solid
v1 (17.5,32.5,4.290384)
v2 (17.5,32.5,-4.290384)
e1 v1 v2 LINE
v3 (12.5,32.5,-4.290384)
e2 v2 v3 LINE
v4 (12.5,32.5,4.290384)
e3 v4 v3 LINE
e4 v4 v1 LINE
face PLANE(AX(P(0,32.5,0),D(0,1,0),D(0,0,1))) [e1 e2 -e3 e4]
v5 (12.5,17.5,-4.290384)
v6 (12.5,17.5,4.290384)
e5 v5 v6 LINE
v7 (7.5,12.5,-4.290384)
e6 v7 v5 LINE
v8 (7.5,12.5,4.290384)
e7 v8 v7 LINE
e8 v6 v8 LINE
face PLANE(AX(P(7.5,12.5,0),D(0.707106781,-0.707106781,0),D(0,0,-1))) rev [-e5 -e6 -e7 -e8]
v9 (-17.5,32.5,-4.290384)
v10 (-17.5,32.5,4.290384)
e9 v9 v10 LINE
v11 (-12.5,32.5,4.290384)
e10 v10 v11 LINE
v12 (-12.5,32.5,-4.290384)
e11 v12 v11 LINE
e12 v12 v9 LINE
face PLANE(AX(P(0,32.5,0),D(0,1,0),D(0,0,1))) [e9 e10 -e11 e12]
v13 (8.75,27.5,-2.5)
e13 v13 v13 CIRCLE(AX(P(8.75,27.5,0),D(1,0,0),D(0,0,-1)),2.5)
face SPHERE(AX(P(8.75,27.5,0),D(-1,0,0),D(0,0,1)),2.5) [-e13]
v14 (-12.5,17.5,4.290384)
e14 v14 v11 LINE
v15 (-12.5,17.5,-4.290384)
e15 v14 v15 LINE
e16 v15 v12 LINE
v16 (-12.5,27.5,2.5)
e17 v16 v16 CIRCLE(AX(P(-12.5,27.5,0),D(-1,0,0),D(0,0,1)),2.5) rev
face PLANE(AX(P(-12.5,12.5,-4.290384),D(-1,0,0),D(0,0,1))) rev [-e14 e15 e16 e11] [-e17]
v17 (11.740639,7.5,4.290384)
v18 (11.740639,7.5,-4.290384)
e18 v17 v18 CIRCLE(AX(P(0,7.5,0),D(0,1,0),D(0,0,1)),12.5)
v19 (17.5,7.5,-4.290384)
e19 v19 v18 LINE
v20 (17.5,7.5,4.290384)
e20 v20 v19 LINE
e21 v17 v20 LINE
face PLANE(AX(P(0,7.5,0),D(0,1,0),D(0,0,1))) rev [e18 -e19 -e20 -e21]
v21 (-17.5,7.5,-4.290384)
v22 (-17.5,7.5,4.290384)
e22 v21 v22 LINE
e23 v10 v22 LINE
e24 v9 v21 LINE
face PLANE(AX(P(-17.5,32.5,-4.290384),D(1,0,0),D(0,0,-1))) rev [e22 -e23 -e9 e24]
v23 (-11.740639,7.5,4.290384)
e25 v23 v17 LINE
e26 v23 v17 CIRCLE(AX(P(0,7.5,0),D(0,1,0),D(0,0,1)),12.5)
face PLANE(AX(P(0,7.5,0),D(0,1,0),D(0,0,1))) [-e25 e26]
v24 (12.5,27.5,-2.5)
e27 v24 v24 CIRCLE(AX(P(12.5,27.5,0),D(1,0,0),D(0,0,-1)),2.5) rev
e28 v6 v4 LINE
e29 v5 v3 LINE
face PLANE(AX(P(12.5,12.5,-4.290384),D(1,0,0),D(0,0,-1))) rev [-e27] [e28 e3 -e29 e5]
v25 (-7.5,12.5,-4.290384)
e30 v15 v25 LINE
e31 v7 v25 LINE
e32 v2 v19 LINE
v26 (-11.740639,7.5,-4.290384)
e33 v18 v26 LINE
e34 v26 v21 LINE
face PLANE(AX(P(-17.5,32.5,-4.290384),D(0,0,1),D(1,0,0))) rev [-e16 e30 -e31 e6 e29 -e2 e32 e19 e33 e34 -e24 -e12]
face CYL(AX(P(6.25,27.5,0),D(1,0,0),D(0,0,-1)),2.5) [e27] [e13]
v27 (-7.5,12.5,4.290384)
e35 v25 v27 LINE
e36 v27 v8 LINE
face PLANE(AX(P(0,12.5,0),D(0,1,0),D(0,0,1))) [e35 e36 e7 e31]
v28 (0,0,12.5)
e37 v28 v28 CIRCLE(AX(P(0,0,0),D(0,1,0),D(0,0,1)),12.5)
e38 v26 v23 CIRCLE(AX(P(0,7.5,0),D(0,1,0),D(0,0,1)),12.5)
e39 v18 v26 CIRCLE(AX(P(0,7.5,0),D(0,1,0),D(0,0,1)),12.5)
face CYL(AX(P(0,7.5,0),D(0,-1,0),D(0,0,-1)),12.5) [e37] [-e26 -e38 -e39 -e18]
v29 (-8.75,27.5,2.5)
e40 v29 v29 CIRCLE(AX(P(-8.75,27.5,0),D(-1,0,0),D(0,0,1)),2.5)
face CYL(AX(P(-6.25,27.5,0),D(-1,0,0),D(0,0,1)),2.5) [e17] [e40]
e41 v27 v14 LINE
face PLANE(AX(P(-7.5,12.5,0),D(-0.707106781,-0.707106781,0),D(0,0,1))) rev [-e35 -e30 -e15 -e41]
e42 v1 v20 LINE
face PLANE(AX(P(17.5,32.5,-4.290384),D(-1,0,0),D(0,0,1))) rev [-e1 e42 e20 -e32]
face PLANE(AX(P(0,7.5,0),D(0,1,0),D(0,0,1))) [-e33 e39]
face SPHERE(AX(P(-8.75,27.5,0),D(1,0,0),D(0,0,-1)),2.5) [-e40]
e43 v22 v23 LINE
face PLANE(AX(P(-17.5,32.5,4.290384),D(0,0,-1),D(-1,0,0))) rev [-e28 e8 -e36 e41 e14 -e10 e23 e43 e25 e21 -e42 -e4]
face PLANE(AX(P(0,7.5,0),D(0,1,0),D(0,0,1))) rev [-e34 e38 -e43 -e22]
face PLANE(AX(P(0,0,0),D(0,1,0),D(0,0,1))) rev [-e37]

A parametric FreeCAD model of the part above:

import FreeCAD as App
import Part
import Sketcher


def edges_at(feature, points):
    """Names of the edges that pass closest to the given points."""
    edges = feature.Shape.Edges
    near = lambda p: min(range(len(edges)), key=lambda i: edges[i].distToShape(Part.Vertex(*p))[0])
    return sorted({f"Edge{near(p) + 1}" for p in points})


def add_polygon(sketch, points):
    """Adds a closed chain of lines whose ends are joined by coincident constraints."""
    first, n = sketch.GeometryCount, len(points)
    for a, b in zip(points, points[1:] + points[:1]):
        sketch.addGeometry(Part.LineSegment(App.Vector(*a, 0), App.Vector(*b, 0)), False)
    for i in range(n):
        sketch.addConstraint(Sketcher.Constraint("Coincident", first + i, 2, first + (i + 1) % n, 1))

doc = App.newDocument("Part")
params = doc.addObject("Spreadsheet::Sheet", "Params")
for row, (alias, value) in enumerate([
    ("sketch1_diameter", "25 mm"),
    ("pad1_length", "7.5 mm"),
    ("sketch2_width", "35 mm"),
    ("pad2_length", "25 mm"),
    ("sketch3_width", "25 mm"),
    ("pocket1_length", "20 mm"),
    ("sketch4_diameter", "5 mm"),
    ("pad3_length", "6.25 mm"),
    ("sketch5_diameter", "5 mm"),
    ("pad4_length", "6.25 mm"),
    ("chamfer_size", "5 mm"),
    ("chamfer2_size", "5 mm"),
    ("fillet_radius", "2.5 mm"),
    ("fillet2_radius", "2.5 mm"),
], start=1):
    params.set(f"A{row}", alias)
    params.set(f"B{row}", "=" + value)
    params.setAlias(f"B{row}", alias)

body = doc.addObject("PartDesign::Body", "Body")

# Sketch on XZ plane
sketch1 = body.newObject("Sketcher::SketchObject", "Sketch")
sketch1.AttachmentSupport = (doc.getObject("XZ_Plane"), [""])
sketch1.MapMode = "FlatFace"
sketch1.addGeometry(Part.Circle(App.Vector(0, 0, 0), App.Vector(0, 0, 1), 12.5), False)
sketch1.addConstraint(Sketcher.Constraint("Coincident", 0, 3, -1, 1))
sketch1.addConstraint(Sketcher.Constraint("Diameter", 0, 25.0))
sketch1.setExpression("Constraints[1]", "Params.sketch1_diameter")
pad1 = body.newObject("PartDesign::Pad", "Pad")
pad1.Profile = sketch1
pad1.setExpression("Length", "Params.pad1_length")
pad1.Reversed = True

# Sketch on XZ plane
sketch2 = body.newObject("Sketcher::SketchObject", "Sketch001")
sketch2.AttachmentSupport = (doc.getObject("XZ_Plane"), [""])
sketch2.MapMode = "FlatFace"
sketch2.AttachmentOffset = App.Placement(App.Vector(0, 0, -7.5), App.Rotation())
add_polygon(sketch2, [(-17.5, -4.290384), (-17.5, 4.290384), (17.5, 4.290384), (17.5, -4.290384)])  # lines 0-3
sketch2.addConstraint(Sketcher.Constraint("Vertical", 0))
sketch2.addConstraint(Sketcher.Constraint("Horizontal", 1))
sketch2.addConstraint(Sketcher.Constraint("Vertical", 2))
sketch2.addConstraint(Sketcher.Constraint("Horizontal", 3))
sketch2.addConstraint(Sketcher.Constraint("Symmetric", 0, 2, 2, 2, -1, 1))
sketch2.addConstraint(Sketcher.Constraint("DistanceX", 1, 1, 1, 2, 35.0))
sketch2.addConstraint(Sketcher.Constraint("DistanceY", 0, 1, 0, 2, 8.580768))
sketch2.setExpression("Constraints[9]", "Params.sketch2_width")
pad2 = body.newObject("PartDesign::Pad", "Pad001")
pad2.Profile = sketch2
pad2.setExpression("Length", "Params.pad2_length")
pad2.Reversed = True

# Sketch on XZ plane
sketch3 = body.newObject("Sketcher::SketchObject", "Sketch002")
sketch3.AttachmentSupport = (doc.getObject("XZ_Plane"), [""])
sketch3.MapMode = "FlatFace"
sketch3.AttachmentOffset = App.Placement(App.Vector(0, 0, -32.5), App.Rotation())
add_polygon(sketch3, [(-12.5, -4.290384), (-12.5, 4.290384), (12.5, 4.290384), (12.5, -4.290384)])  # lines 0-3
sketch3.addConstraint(Sketcher.Constraint("Vertical", 0))
sketch3.addConstraint(Sketcher.Constraint("Horizontal", 1))
sketch3.addConstraint(Sketcher.Constraint("Vertical", 2))
sketch3.addConstraint(Sketcher.Constraint("Horizontal", 3))
sketch3.addConstraint(Sketcher.Constraint("Symmetric", 0, 2, 2, 2, -1, 1))
sketch3.addConstraint(Sketcher.Constraint("DistanceX", 1, 1, 1, 2, 25.0))
sketch3.addConstraint(Sketcher.Constraint("DistanceY", 0, 1, 0, 2, 8.580768))
sketch3.setExpression("Constraints[9]", "Params.sketch3_width")
pocket1 = body.newObject("PartDesign::Pocket", "Pocket")
pocket1.Profile = sketch3
pocket1.setExpression("Length", "Params.pocket1_length")
pocket1.Reversed = True

# Sketch on YZ plane
sketch4 = body.newObject("Sketcher::SketchObject", "Sketch003")
sketch4.AttachmentSupport = (doc.getObject("YZ_Plane"), [""])
sketch4.MapMode = "FlatFace"
sketch4.AttachmentOffset = App.Placement(App.Vector(0, 0, -12.5), App.Rotation())
sketch4.addGeometry(Part.Circle(App.Vector(27.5, 0, 0), App.Vector(0, 0, 1), 2.5), False)
sketch4.addConstraint(Sketcher.Constraint("PointOnObject", 0, 3, -1))
sketch4.addConstraint(Sketcher.Constraint("Diameter", 0, 5.0))
sketch4.addConstraint(Sketcher.Constraint("DistanceX", -1, 1, 0, 3, 27.5))
sketch4.setExpression("Constraints[1]", "Params.sketch4_diameter")
pad3 = body.newObject("PartDesign::Pad", "Pad002")
pad3.Profile = sketch4
pad3.setExpression("Length", "Params.pad3_length")

# Sketch on YZ plane
sketch5 = body.newObject("Sketcher::SketchObject", "Sketch004")
sketch5.AttachmentSupport = (doc.getObject("YZ_Plane"), [""])
sketch5.MapMode = "FlatFace"
sketch5.AttachmentOffset = App.Placement(App.Vector(0, 0, 12.5), App.Rotation())
sketch5.addGeometry(Part.Circle(App.Vector(27.5, 0, 0), App.Vector(0, 0, 1), 2.5), False)
sketch5.addConstraint(Sketcher.Constraint("PointOnObject", 0, 3, -1))
sketch5.addConstraint(Sketcher.Constraint("Diameter", 0, 5.0))
sketch5.addConstraint(Sketcher.Constraint("DistanceX", -1, 1, 0, 3, 27.5))
sketch5.setExpression("Constraints[1]", "Params.sketch5_diameter")
pad4 = body.newObject("PartDesign::Pad", "Pad003")
pad4.Profile = sketch5
pad4.setExpression("Length", "Params.pad4_length")
pad4.Reversed = True
doc.recompute()

chamfer = body.newObject("PartDesign::Chamfer", "Chamfer")
chamfer.Base = (pad4, edges_at(pad4, [(-12.5, 12.5, 0)]))
chamfer.setExpression("Size", "Params.chamfer_size")
doc.recompute()

chamfer2 = body.newObject("PartDesign::Chamfer", "Chamfer001")
chamfer2.Base = (chamfer, edges_at(chamfer, [(12.5, 12.5, 0)]))
chamfer2.setExpression("Size", "Params.chamfer2_size")
doc.recompute()

fillet = body.newObject("PartDesign::Fillet", "Fillet")
fillet.Base = (chamfer2, edges_at(chamfer2, [(-6.25, 27.5, 2.5)]))
fillet.setExpression("Radius", "Params.fillet_radius")
doc.recompute()

fillet2 = body.newObject("PartDesign::Fillet", "Fillet001")
fillet2.Base = (fillet, edges_at(fillet, [(6.25, 27.5, -2.5)]))
fillet2.setExpression("Radius", "Params.fillet2_radius")

doc.recompute()
